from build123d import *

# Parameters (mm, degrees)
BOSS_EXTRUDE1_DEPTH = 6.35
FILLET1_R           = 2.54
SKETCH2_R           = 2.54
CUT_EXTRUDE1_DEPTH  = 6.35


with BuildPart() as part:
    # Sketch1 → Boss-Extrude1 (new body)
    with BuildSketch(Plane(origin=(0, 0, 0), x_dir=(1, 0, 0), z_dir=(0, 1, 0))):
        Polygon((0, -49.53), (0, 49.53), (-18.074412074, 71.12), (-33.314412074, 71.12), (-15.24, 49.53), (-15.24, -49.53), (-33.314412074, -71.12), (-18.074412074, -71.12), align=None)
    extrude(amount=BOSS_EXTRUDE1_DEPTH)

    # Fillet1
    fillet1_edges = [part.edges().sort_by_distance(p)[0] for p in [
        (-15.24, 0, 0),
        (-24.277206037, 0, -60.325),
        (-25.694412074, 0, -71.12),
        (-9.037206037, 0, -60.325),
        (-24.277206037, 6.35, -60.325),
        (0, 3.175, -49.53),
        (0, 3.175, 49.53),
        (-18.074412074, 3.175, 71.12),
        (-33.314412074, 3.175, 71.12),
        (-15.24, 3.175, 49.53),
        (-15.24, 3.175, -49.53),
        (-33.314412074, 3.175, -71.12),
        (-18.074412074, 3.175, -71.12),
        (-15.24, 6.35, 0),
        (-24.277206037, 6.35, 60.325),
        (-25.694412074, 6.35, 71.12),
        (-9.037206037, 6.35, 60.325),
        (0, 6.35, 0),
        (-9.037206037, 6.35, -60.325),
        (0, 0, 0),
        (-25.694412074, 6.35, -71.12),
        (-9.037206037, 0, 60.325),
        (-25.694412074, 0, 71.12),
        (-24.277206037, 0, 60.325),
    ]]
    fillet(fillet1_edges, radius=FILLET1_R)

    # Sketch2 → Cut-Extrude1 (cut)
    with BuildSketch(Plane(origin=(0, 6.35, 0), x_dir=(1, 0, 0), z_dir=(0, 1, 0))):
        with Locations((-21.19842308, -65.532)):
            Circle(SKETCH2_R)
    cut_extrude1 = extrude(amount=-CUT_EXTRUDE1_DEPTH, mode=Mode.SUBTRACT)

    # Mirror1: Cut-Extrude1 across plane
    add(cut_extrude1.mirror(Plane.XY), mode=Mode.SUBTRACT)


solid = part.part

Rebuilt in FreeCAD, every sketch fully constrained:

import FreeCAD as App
import Part
import Sketcher

V = App.Vector
Q = App.Units.Quantity

doc = App.newDocument("Part")
body = doc.addObject("PartDesign::Body", "Body")

# Sketch on XZ plane
sketch1 = body.newObject("Sketcher::SketchObject", "Sketch")
sketch1.AttachmentSupport = (doc.getObject("XZ_Plane"), [""])
sketch1.MapMode = "FlatFace"
sketch1.addGeometry([
    Part.LineSegment(V(0, 49.53, 0), V(0, -49.53, 0)),  # 0
    Part.LineSegment(V(0, -49.53, 0), V(-18.074412, -71.12, 0)),  # 1
    Part.LineSegment(V(-18.074412, -71.12, 0), V(-33.314412, -71.12, 0)),  # 2
    Part.LineSegment(V(-33.314412, -71.12, 0), V(-15.24, -49.53, 0)),  # 3
    Part.LineSegment(V(-15.24, -49.53, 0), V(-15.24, 49.53, 0)),  # 4
    Part.LineSegment(V(-15.24, 49.53, 0), V(-33.314412, 71.12, 0)),  # 5
    Part.LineSegment(V(-33.314412, 71.12, 0), V(-18.074412, 71.12, 0)),  # 6
    Part.LineSegment(V(-18.074412, 71.12, 0), V(0, 49.53, 0)),  # 7
], False)
sketch1.addConstraint([
    Sketcher.Constraint("Coincident", 0, 2, 1, 1),
    Sketcher.Constraint("Coincident", 1, 2, 2, 1),
    Sketcher.Constraint("Coincident", 2, 2, 3, 1),
    Sketcher.Constraint("Coincident", 3, 2, 4, 1),
    Sketcher.Constraint("Coincident", 4, 2, 5, 1),
    Sketcher.Constraint("Coincident", 5, 2, 6, 1),
    Sketcher.Constraint("Coincident", 6, 2, 7, 1),
    Sketcher.Constraint("Coincident", 7, 2, 0, 1),
    Sketcher.Constraint("Vertical", 0),
    Sketcher.Constraint("Horizontal", 2),
    Sketcher.Constraint("Vertical", 4),
    Sketcher.Constraint("Horizontal", 6),
    Sketcher.Constraint("Symmetric", 0, 2, 7, 2, -1, 1),
    Sketcher.Constraint("Symmetric", 2, 2, 5, 2, -1),
    Sketcher.Constraint("Parallel", 1, 3),
    Sketcher.Constraint("Parallel", 5, 7),
    Sketcher.Constraint("Horizontal", 0, 2, 3, 2),
    Sketcher.Constraint("Horizontal", 4, 2, 7, 2),
    Sketcher.Constraint("DistanceX", 2, 2, 2, 1, Q("0.6 in")),
    Sketcher.Constraint("DistanceY", 0, 2, 0, 1, Q("3.9 in")),
    Sketcher.Constraint("DistanceY", 1, 2, -1, 1, Q("2.8 in")),
    Sketcher.Constraint("Distance", 1, Q("28.156926 mm")),
])
pad1 = body.newObject("PartDesign::Pad", "Pad")
pad1.Profile = sketch1
pad1.Length = Q("0.25 in")
pad1.Reversed = True
doc.recompute()

fillet = body.newObject("PartDesign::Fillet", "Fillet")
fillet.Base = (pad1, ["Edge1"])
fillet.UseAllEdges = True
fillet.Radius = Q("0.1 in")

# Sketch on XZ plane
sketch2 = body.newObject("Sketcher::SketchObject", "Sketch001")
sketch2.AttachmentSupport = (doc.getObject("XZ_Plane"), [""])
sketch2.MapMode = "FlatFace"
sketch2.AttachmentOffset = App.Placement(V(0, 0, -0.25 * 25.4), App.Rotation())
sketch2.addGeometry(Part.Circle(V(-21.198423, 65.532, 0), V(0, 0, 1), 2.54), False)
sketch2.addConstraint([
    Sketcher.Constraint("Diameter", 0, Q("0.2 in")),
    Sketcher.Constraint("DistanceY", -1, 1, 0, 3, Q("2.58 in")),
    Sketcher.Constraint("DistanceX", 0, 3, -1, 1, Q("21.198423 mm")),
])
pocket1 = body.newObject("PartDesign::Pocket", "Pocket")
pocket1.Profile = sketch2
pocket1.Length = Q("0.25 in")
pocket1.Reversed = True
doc.recompute()

mirrored = body.newObject("PartDesign::Mirrored", "Mirrored")
mirrored.Originals = [pocket1]
mirrored.MirrorPlane = (doc.getObject("XY_Plane"), [""])
body.Tip = mirrored

doc.recompute()
